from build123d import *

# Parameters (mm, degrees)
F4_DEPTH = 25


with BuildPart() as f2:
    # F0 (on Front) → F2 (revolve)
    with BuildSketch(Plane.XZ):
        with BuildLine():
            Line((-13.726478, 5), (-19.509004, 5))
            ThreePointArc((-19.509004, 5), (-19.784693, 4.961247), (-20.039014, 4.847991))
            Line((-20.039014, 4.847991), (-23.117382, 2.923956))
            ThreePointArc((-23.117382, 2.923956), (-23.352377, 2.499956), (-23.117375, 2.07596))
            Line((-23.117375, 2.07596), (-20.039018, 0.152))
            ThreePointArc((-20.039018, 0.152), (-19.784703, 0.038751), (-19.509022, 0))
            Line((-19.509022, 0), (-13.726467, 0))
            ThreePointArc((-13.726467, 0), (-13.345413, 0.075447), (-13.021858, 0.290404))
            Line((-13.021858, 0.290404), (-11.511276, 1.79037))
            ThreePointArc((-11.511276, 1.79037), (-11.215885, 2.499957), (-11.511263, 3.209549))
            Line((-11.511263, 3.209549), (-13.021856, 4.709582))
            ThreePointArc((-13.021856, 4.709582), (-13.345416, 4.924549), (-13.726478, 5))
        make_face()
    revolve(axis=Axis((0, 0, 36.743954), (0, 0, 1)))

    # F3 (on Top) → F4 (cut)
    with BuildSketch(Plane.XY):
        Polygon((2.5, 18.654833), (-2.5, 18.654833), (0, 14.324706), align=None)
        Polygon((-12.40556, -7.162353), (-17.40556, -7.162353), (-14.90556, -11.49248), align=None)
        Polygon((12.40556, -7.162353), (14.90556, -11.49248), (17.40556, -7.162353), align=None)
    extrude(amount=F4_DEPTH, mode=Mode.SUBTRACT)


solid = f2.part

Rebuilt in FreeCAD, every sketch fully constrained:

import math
import FreeCAD as App
import Part
import Sketcher

V = App.Vector
Q = App.Units.Quantity

doc = App.newDocument("Part")
params = doc.addObject("Spreadsheet::Sheet", "Params")
for row, (alias, value) in enumerate([
    ("sketch1_radius", "0.999999 mm"),
    ("sketch1_radius2", "0.5 mm"),
    ("revolution_angle", "360 deg"),
    ("sketch2_width", "5 mm"),
    ("pocket1_length", "25 mm"),
], start=1):
    params.set(f"A{row}", alias)
    params.set(f"B{row}", "=" + value)
    params.setAlias(f"B{row}", alias)

body = doc.addObject("PartDesign::Body", "Body")

# Sketch on XZ plane
sketch1 = doc.addObject("Sketcher::SketchObject", "Sketch")
body.addObject(sketch1)
sketch1.AttachmentSupport = (doc.XZ_Plane, [""])
sketch1.MapMode = "FlatFace"
sketch1.addGeometry([
    Part.LineSegment(V(-13.7, 5, 0), V(-19.5, 5, 0)),  # 0
    Part.ArcOfCircle(Part.Circle(V(-19.5, 4, 0), V(0, 0, 1), 1), math.radians(90), math.radians(122)),  # 1
    Part.LineSegment(V(-20, 4.8, 0), V(-23.1, 2.9, 0)),  # 2
    Part.ArcOfCircle(Part.Circle(V(-22.9, 2.5, 0), V(0, 0, 1), 0.5), math.radians(122), math.radians(238)),  # 3
    Part.LineSegment(V(-23.1, 2.1, 0), V(-20, 0.2, 0)),  # 4
    Part.ArcOfCircle(Part.Circle(V(-19.5, 1, 0), V(0, 0, 1), 1), math.radians(-122), math.radians(-90)),  # 5
    Part.LineSegment(V(-19.5, 0, 0), V(-13.7, 0, 0)),  # 6
    Part.ArcOfCircle(Part.Circle(V(-13.7, 1, 0), V(0, 0, 1), 1), math.radians(-90), math.radians(-45)),  # 7
    Part.LineSegment(V(-13, 0.3, 0), V(-11.5, 1.8, 0)),  # 8
    Part.ArcOfCircle(Part.Circle(V(-12.2, 2.5, 0), V(0, 0, 1), 1), math.radians(-45), math.radians(45)),  # 9
    Part.LineSegment(V(-11.5, 3.2, 0), V(-13, 4.7, 0)),  # 10
    Part.ArcOfCircle(Part.Circle(V(-13.7, 4, 0), V(0, 0, 1), 1), math.radians(45), math.radians(90)),  # 11
], False)
sketch1.addConstraint([
    Sketcher.Constraint("Tangent", 0, 2, 1, 1),
    Sketcher.Constraint("Coincident", 1, 2, 2, 1),
    Sketcher.Constraint("Tangent", 2, 2, 3, 1),
    Sketcher.Constraint("Tangent", 3, 2, 4, 1),
    Sketcher.Constraint("Tangent", 4, 2, 5, 1),
    Sketcher.Constraint("Tangent", 5, 2, 6, 1),
    Sketcher.Constraint("Tangent", 6, 2, 7, 1),
    Sketcher.Constraint("Tangent", 7, 2, 8, 1),
    Sketcher.Constraint("Tangent", 8, 2, 9, 1),
    Sketcher.Constraint("Tangent", 9, 2, 10, 1),
    Sketcher.Constraint("Tangent", 10, 2, 11, 1),
    Sketcher.Constraint("Tangent", 11, 2, 0, 1),
    Sketcher.Constraint("Horizontal", 0),
    Sketcher.Constraint("Horizontal", 6),
    Sketcher.Constraint("Equal", 7, 9),
    Sketcher.Constraint("Equal", 9, 11),
    Sketcher.Constraint("PointOnObject", 5, 2, -1),
    Sketcher.Constraint("Radius", 7, Q("0.999999 mm")),
    Sketcher.Constraint("Radius", 3, Q("0.5 mm")),
    Sketcher.Constraint("DistanceY", -1, 1, 11, 3, Q("3.999999 mm")),
    Sketcher.Constraint("DistanceY", -1, 1, 4, 2, Q("0.152 mm")),
    Sketcher.Constraint("Radius", 1, Q("0.999993 mm")),
    Sketcher.Constraint("Radius", 5, Q("1.000003 mm")),
    Sketcher.Constraint("DistanceX", 11, 2, 8, 2, Q("2.215202 mm")),
    Sketcher.Constraint("Distance", 4, Q("3.630138 mm")),
    Sketcher.Constraint("DistanceX", 0, 2, 0, 1, Q("5.782526 mm")),
    Sketcher.Constraint("DistanceX", 6, 1, 6, 2, Q("5.782555 mm")),
    Sketcher.Constraint("DistanceX", 5, 3, -1, 1, Q("19.509021 mm")),
    Sketcher.Constraint("DistanceX", 11, 3, -1, 1, Q("13.726479 mm")),
    Sketcher.Constraint("DistanceY", -1, 1, 1, 2, Q("4.847991 mm")),
    Sketcher.Constraint("DistanceX", 7, 2, -1, 1, Q("13.021858 mm")),
])
sketch1.setExpression("Constraints[17]", "Params.sketch1_radius")
sketch1.setExpression("Constraints[18]", "Params.sketch1_radius2")
revolution = doc.addObject("PartDesign::Revolution", "Revolution")
body.addObject(revolution)
revolution.Profile = sketch1
revolution.ReferenceAxis = (sketch1, ["V_Axis"])
revolution.setExpression("Angle", "Params.revolution_angle")

# Sketch on XY plane
sketch2 = doc.addObject("Sketcher::SketchObject", "Sketch001")
body.addObject(sketch2)
sketch2.AttachmentSupport = (doc.XY_Plane, [""])
sketch2.MapMode = "FlatFace"
sketch2.addGeometry([
    Part.LineSegment(V(2.5, 18.7, 0), V(-2.5, 18.7, 0)),  # 0
    Part.LineSegment(V(-2.5, 18.7, 0), V(0, 14.3, 0)),  # 1
    Part.LineSegment(V(0, 14.3, 0), V(2.5, 18.7, 0)),  # 2
    Part.LineSegment(V(-12.4, -7.2, 0), V(-17.4, -7.2, 0)),  # 3
    Part.LineSegment(V(-17.4, -7.2, 0), V(-14.9, -11.5, 0)),  # 4
    Part.LineSegment(V(-14.9, -11.5, 0), V(-12.4, -7.2, 0)),  # 5
    Part.LineSegment(V(12.4, -7.2, 0), V(14.9, -11.5, 0)),  # 6
    Part.LineSegment(V(14.9, -11.5, 0), V(17.4, -7.2, 0)),  # 7
    Part.LineSegment(V(17.4, -7.2, 0), V(12.4, -7.2, 0)),  # 8
], False)
sketch2.addConstraint([
    Sketcher.Constraint("Coincident", 0, 2, 1, 1),
    Sketcher.Constraint("Coincident", 1, 2, 2, 1),
    Sketcher.Constraint("Coincident", 2, 2, 0, 1),
    Sketcher.Constraint("Coincident", 3, 2, 4, 1),
    Sketcher.Constraint("Coincident", 4, 2, 5, 1),
    Sketcher.Constraint("Coincident", 5, 2, 3, 1),
    Sketcher.Constraint("Coincident", 6, 2, 7, 1),
    Sketcher.Constraint("Coincident", 7, 2, 8, 1),
    Sketcher.Constraint("Coincident", 8, 2, 6, 1),
    Sketcher.Constraint("Horizontal", 0),
    Sketcher.Constraint("Horizontal", 3),
    Sketcher.Constraint("Horizontal", 8),
    Sketcher.Constraint("Symmetric", 4, 2, 6, 2, -2),
    Sketcher.Constraint("Symmetric", 3, 2, 7, 2, -2),
    Sketcher.Constraint("PointOnObject", 1, 2, -2),
    Sketcher.Constraint("Parallel", 1, 4),
    Sketcher.Constraint("Parallel", 2, 5),
    Sketcher.Constraint("Parallel", 4, 6),
    Sketcher.Constraint("Parallel", 5, 7),
    Sketcher.Constraint("Equal", 0, 3),
    Sketcher.Constraint("DistanceX", 0, 2, 0, 1, Q("5 mm")),
    Sketcher.Constraint("Angle", 1, Q("-60 deg")),
    Sketcher.Constraint("DistanceX", 3, 2, -1, 1, Q("17.40556 mm")),
    Sketcher.Constraint("DistanceY", 4, 2, -1, 1, Q("11.49248 mm")),
    Sketcher.Constraint("DistanceY", 3, 2, 1, 2, Q("21.487059 mm")),
])
sketch2.setExpression("Constraints[20]", "Params.sketch2_width")
pocket1 = doc.addObject("PartDesign::Pocket", "Pocket")
body.addObject(pocket1)
pocket1.Profile = sketch2
pocket1.setExpression("Length", "Params.pocket1_length")
pocket1.Reversed = True

doc.recompute()
